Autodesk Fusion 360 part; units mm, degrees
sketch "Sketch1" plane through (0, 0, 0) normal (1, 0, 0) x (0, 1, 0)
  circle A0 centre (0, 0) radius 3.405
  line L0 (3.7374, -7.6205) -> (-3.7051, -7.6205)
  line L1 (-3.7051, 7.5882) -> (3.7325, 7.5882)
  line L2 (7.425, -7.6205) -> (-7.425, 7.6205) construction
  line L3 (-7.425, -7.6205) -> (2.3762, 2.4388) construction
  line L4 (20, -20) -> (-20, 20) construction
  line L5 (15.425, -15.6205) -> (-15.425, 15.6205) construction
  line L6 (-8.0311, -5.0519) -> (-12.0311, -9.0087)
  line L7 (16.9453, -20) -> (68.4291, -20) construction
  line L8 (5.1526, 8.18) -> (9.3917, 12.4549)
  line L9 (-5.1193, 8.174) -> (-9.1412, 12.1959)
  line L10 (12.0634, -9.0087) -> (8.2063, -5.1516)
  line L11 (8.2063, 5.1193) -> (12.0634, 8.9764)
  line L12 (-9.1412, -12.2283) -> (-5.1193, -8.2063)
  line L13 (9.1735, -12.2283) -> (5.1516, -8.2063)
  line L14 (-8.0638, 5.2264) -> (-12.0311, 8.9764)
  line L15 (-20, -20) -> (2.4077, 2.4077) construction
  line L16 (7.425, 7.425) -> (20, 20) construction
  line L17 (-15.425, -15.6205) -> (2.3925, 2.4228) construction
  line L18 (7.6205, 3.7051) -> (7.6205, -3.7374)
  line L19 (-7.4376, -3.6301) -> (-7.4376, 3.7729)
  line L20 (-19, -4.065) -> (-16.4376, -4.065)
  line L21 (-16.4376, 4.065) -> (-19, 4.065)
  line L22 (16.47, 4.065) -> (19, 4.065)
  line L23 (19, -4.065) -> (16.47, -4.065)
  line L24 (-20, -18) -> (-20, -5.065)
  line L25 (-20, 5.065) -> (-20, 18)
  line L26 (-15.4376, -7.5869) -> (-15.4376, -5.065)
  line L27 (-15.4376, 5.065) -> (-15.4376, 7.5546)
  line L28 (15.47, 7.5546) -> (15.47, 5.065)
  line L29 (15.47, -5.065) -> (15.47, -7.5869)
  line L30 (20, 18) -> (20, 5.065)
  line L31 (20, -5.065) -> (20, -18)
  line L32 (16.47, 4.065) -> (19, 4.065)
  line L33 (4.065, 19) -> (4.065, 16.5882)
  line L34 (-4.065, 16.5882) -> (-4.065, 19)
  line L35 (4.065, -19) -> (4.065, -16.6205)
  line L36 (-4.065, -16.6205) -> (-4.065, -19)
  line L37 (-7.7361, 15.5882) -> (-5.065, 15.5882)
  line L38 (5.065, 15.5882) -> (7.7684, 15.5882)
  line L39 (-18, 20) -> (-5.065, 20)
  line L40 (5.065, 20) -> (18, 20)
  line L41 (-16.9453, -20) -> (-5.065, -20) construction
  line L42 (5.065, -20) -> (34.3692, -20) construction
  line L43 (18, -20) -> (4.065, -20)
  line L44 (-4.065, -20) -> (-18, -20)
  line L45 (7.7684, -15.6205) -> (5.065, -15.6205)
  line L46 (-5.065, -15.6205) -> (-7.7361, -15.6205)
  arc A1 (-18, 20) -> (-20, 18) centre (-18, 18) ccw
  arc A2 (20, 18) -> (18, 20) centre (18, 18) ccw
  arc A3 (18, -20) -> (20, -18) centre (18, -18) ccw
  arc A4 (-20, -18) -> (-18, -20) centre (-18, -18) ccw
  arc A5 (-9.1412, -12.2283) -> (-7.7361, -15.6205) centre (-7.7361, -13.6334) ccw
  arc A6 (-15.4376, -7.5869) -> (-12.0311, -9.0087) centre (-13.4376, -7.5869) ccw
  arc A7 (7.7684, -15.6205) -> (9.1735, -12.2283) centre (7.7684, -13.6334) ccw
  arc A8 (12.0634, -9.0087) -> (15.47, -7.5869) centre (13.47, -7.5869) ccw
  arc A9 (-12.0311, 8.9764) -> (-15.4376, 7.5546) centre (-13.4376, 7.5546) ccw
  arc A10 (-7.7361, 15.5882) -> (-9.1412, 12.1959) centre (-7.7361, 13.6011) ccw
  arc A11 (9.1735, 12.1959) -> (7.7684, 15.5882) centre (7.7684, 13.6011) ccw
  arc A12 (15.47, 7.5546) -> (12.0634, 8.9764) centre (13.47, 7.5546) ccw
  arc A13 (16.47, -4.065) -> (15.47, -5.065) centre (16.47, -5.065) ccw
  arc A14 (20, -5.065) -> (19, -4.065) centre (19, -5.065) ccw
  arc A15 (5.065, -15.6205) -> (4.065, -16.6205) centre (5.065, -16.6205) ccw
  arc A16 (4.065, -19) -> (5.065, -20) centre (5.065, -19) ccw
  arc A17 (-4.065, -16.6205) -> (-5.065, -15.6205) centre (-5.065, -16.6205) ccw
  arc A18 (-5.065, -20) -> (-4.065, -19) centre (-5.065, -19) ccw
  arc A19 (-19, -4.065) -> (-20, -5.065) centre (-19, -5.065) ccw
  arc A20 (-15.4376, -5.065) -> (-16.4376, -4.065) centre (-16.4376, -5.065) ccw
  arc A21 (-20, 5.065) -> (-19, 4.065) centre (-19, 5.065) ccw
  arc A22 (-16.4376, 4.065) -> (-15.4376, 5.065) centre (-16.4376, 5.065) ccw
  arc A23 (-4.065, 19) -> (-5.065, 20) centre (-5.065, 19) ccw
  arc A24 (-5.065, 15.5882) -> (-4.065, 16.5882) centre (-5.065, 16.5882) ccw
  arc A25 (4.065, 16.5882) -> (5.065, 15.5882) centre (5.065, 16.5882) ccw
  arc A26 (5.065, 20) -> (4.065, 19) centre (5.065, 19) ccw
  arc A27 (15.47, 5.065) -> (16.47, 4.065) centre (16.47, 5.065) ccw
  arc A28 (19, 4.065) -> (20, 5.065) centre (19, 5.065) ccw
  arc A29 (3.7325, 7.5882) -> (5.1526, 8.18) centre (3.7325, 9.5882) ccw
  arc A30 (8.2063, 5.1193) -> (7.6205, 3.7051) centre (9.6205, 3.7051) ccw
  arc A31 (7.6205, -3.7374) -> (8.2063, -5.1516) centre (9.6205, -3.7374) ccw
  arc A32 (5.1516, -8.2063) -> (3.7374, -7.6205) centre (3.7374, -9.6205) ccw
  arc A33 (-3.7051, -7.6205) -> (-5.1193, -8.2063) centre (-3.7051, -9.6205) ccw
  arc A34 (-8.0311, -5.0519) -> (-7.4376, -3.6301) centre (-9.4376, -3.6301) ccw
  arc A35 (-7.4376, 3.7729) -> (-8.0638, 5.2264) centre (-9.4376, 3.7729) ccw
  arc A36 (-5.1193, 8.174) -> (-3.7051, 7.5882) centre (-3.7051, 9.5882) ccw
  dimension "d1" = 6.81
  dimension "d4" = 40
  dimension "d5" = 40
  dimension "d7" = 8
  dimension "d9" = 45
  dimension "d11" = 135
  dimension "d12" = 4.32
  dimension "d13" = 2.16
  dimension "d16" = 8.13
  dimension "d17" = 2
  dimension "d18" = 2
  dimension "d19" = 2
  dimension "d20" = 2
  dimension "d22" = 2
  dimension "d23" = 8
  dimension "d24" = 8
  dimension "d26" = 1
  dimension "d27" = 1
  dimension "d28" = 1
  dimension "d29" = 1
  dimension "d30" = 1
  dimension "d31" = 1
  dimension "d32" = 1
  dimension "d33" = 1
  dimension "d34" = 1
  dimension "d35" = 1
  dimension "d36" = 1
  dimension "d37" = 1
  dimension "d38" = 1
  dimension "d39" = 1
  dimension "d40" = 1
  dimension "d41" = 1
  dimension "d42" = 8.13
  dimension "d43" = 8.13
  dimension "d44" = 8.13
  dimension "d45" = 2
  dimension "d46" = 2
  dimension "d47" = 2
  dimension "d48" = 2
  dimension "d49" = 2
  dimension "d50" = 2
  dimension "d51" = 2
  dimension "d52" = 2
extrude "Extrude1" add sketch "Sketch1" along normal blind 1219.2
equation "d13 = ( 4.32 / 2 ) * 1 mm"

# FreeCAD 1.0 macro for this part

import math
import FreeCAD as App
import Part
import Sketcher
Q = App.Units.Quantity

doc = App.newDocument("Part")
body = doc.addObject("PartDesign::Body", "Body")

sketch1 = body.newObject("Sketcher::SketchObject", "Sketch")
sketch1.AttachmentSupport = (doc.getObject("YZ_Plane"), [""])
sketch1.MapMode = "FlatFace"
sketch1.addGeometry(Part.LineSegment(App.Vector(-3.7, -7.6, 0), App.Vector(3.7, -7.6, 0)), False)
sketch1.addGeometry(Part.ArcOfCircle(Part.Circle(App.Vector(3.7, -9.6, 0), App.Vector(0, 0, 1), 2), math.radians(45), math.radians(90)), False)
sketch1.addGeometry(Part.LineSegment(App.Vector(5.2, -8.2, 0), App.Vector(9.2, -12.2, 0)), False)
sketch1.addGeometry(Part.ArcOfCircle(Part.Circle(App.Vector(7.8, -13.6, 0), App.Vector(0, 0, 1), 2), math.radians(-90), math.radians(45)), False)
sketch1.addGeometry(Part.LineSegment(App.Vector(7.8, -15.6, 0), App.Vector(5.1, -15.6, 0)), False)
sketch1.addGeometry(Part.ArcOfCircle(Part.Circle(App.Vector(5.1, -16.6, 0), App.Vector(0, 0, 1), 1), math.radians(90), math.radians(180)), False)
sketch1.addGeometry(Part.LineSegment(App.Vector(4.1, -16.6, 0), App.Vector(4.1, -19, 0)), False)
sketch1.addGeometry(Part.ArcOfCircle(Part.Circle(App.Vector(5.1, -19, 0), App.Vector(0, 0, 1), 1), math.radians(180), math.radians(270)), False)
sketch1.addGeometry(Part.LineSegment(App.Vector(5.1, -20, 0), App.Vector(18, -20, 0)), False)
sketch1.addGeometry(Part.ArcOfCircle(Part.Circle(App.Vector(18, -18, 0), App.Vector(0, 0, 1), 2), math.radians(-90), math.radians(0)), False)
sketch1.addGeometry(Part.LineSegment(App.Vector(20, -18, 0), App.Vector(20, -5.1, 0)), False)
sketch1.addGeometry(Part.ArcOfCircle(Part.Circle(App.Vector(19, -5.1, 0), App.Vector(0, 0, 1), 1), math.radians(0), math.radians(90)), False)
sketch1.addGeometry(Part.LineSegment(App.Vector(19, -4.1, 0), App.Vector(16.5, -4.1, 0)), False)
sketch1.addGeometry(Part.ArcOfCircle(Part.Circle(App.Vector(16.5, -5.1, 0), App.Vector(0, 0, 1), 1), math.radians(90), math.radians(180)), False)
sketch1.addGeometry(Part.LineSegment(App.Vector(15.5, -5.1, 0), App.Vector(15.5, -7.6, 0)), False)
sketch1.addGeometry(Part.ArcOfCircle(Part.Circle(App.Vector(13.5, -7.6, 0), App.Vector(0, 0, 1), 2), math.radians(-135), math.radians(0)), False)
sketch1.addGeometry(Part.LineSegment(App.Vector(12.1, -9, 0), App.Vector(8.2, -5.2, 0)), False)
sketch1.addGeometry(Part.ArcOfCircle(Part.Circle(App.Vector(9.6, -3.7, 0), App.Vector(0, 0, 1), 2), math.radians(180), math.radians(225)), False)
sketch1.addGeometry(Part.LineSegment(App.Vector(7.6, -3.7, 0), App.Vector(7.6, 3.7, 0)), False)
sketch1.addGeometry(Part.ArcOfCircle(Part.Circle(App.Vector(9.6, 3.7, 0), App.Vector(0, 0, 1), 2), math.radians(135), math.radians(180)), False)
sketch1.addGeometry(Part.LineSegment(App.Vector(8.2, 5.1, 0), App.Vector(12.1, 9, 0)), False)
sketch1.addGeometry(Part.ArcOfCircle(Part.Circle(App.Vector(13.5, 7.6, 0), App.Vector(0, 0, 1), 2), math.radians(0), math.radians(135)), False)
sketch1.addGeometry(Part.LineSegment(App.Vector(15.5, 7.6, 0), App.Vector(15.5, 5.1, 0)), False)
sketch1.addGeometry(Part.ArcOfCircle(Part.Circle(App.Vector(16.5, 5.1, 0), App.Vector(0, 0, 1), 1), math.radians(180), math.radians(270)), False)
sketch1.addGeometry(Part.LineSegment(App.Vector(16.5, 4.1, 0), App.Vector(19, 4.1, 0)), False)
sketch1.addGeometry(Part.ArcOfCircle(Part.Circle(App.Vector(19, 5.1, 0), App.Vector(0, 0, 1), 1), math.radians(-90), math.radians(0)), False)
sketch1.addGeometry(Part.LineSegment(App.Vector(20, 5.1, 0), App.Vector(20, 18, 0)), False)
sketch1.addGeometry(Part.ArcOfCircle(Part.Circle(App.Vector(18, 18, 0), App.Vector(0, 0, 1), 2), math.radians(0), math.radians(90)), False)
sketch1.addGeometry(Part.LineSegment(App.Vector(18, 20, 0), App.Vector(5.1, 20, 0)), False)
sketch1.addGeometry(Part.ArcOfCircle(Part.Circle(App.Vector(5.1, 19, 0), App.Vector(0, 0, 1), 1), math.radians(90), math.radians(180)), False)
sketch1.addGeometry(Part.LineSegment(App.Vector(4.1, 19, 0), App.Vector(4.1, 16.6, 0)), False)
sketch1.addGeometry(Part.ArcOfCircle(Part.Circle(App.Vector(5.1, 16.6, 0), App.Vector(0, 0, 1), 1), math.radians(180), math.radians(270)), False)
sketch1.addGeometry(Part.LineSegment(App.Vector(5.1, 15.6, 0), App.Vector(7.8, 15.6, 0)), False)
sketch1.addGeometry(Part.ArcOfCircle(Part.Circle(App.Vector(7.8, 13.6, 0), App.Vector(0, 0, 1), 2), math.radians(-35), math.radians(90)), False)
sketch1.addGeometry(Part.LineSegment(App.Vector(9.4, 12.5, 0), App.Vector(5.2, 8.2, 0)), False)
sketch1.addGeometry(Part.ArcOfCircle(Part.Circle(App.Vector(3.7, 9.6, 0), App.Vector(0, 0, 1), 2), math.radians(-90), math.radians(-45)), False)
sketch1.addGeometry(Part.LineSegment(App.Vector(3.7, 7.6, 0), App.Vector(-3.7, 7.6, 0)), False)
sketch1.addGeometry(Part.ArcOfCircle(Part.Circle(App.Vector(-3.7, 9.6, 0), App.Vector(0, 0, 1), 2), math.radians(-135), math.radians(-90)), False)
sketch1.addGeometry(Part.LineSegment(App.Vector(-5.1, 8.2, 0), App.Vector(-9.1, 12.2, 0)), False)
sketch1.addGeometry(Part.ArcOfCircle(Part.Circle(App.Vector(-7.7, 13.6, 0), App.Vector(0, 0, 1), 2), math.radians(90), math.radians(225)), False)
sketch1.addGeometry(Part.LineSegment(App.Vector(-7.7, 15.6, 0), App.Vector(-5.1, 15.6, 0)), False)
sketch1.addGeometry(Part.ArcOfCircle(Part.Circle(App.Vector(-5.1, 16.6, 0), App.Vector(0, 0, 1), 1), math.radians(-90), math.radians(0)), False)
sketch1.addGeometry(Part.LineSegment(App.Vector(-4.1, 16.6, 0), App.Vector(-4.1, 19, 0)), False)
sketch1.addGeometry(Part.ArcOfCircle(Part.Circle(App.Vector(-5.1, 19, 0), App.Vector(0, 0, 1), 1), math.radians(0), math.radians(90)), False)
sketch1.addGeometry(Part.LineSegment(App.Vector(-5.1, 20, 0), App.Vector(-18, 20, 0)), False)
sketch1.addGeometry(Part.ArcOfCircle(Part.Circle(App.Vector(-18, 18, 0), App.Vector(0, 0, 1), 2), math.radians(90), math.radians(180)), False)
sketch1.addGeometry(Part.LineSegment(App.Vector(-20, 18, 0), App.Vector(-20, 5.1, 0)), False)
sketch1.addGeometry(Part.ArcOfCircle(Part.Circle(App.Vector(-19, 5.1, 0), App.Vector(0, 0, 1), 1), math.radians(180), math.radians(270)), False)
sketch1.addGeometry(Part.LineSegment(App.Vector(-19, 4.1, 0), App.Vector(-16.4, 4.1, 0)), False)
sketch1.addGeometry(Part.ArcOfCircle(Part.Circle(App.Vector(-16.4, 5.1, 0), App.Vector(0, 0, 1), 1), math.radians(-90), math.radians(0)), False)
sketch1.addGeometry(Part.LineSegment(App.Vector(-15.4, 5.1, 0), App.Vector(-15.4, 7.6, 0)), False)
sketch1.addGeometry(Part.ArcOfCircle(Part.Circle(App.Vector(-13.4, 7.6, 0), App.Vector(0, 0, 1), 2), math.radians(45), math.radians(180)), False)
sketch1.addGeometry(Part.LineSegment(App.Vector(-12, 9, 0), App.Vector(-8.1, 5.2, 0)), False)
sketch1.addGeometry(Part.ArcOfCircle(Part.Circle(App.Vector(-9.4, 3.8, 0), App.Vector(0, 0, 1), 2), math.radians(0), math.radians(47)), False)
sketch1.addGeometry(Part.LineSegment(App.Vector(-7.4, 3.8, 0), App.Vector(-7.4, -3.6, 0)), False)
sketch1.addGeometry(Part.ArcOfCircle(Part.Circle(App.Vector(-9.4, -3.6, 0), App.Vector(0, 0, 1), 2), math.radians(-45), math.radians(0)), False)
sketch1.addGeometry(Part.LineSegment(App.Vector(-8, -5.1, 0), App.Vector(-12, -9, 0)), False)
sketch1.addGeometry(Part.ArcOfCircle(Part.Circle(App.Vector(-13.4, -7.6, 0), App.Vector(0, 0, 1), 2), math.radians(180), math.radians(315)), False)
sketch1.addGeometry(Part.LineSegment(App.Vector(-15.4, -7.6, 0), App.Vector(-15.4, -5.1, 0)), False)
sketch1.addGeometry(Part.ArcOfCircle(Part.Circle(App.Vector(-16.4, -5.1, 0), App.Vector(0, 0, 1), 1), math.radians(0), math.radians(90)), False)
sketch1.addGeometry(Part.LineSegment(App.Vector(-16.4, -4.1, 0), App.Vector(-19, -4.1, 0)), False)
sketch1.addGeometry(Part.ArcOfCircle(Part.Circle(App.Vector(-19, -5.1, 0), App.Vector(0, 0, 1), 1), math.radians(90), math.radians(180)), False)
sketch1.addGeometry(Part.LineSegment(App.Vector(-20, -5.1, 0), App.Vector(-20, -18, 0)), False)
sketch1.addGeometry(Part.ArcOfCircle(Part.Circle(App.Vector(-18, -18, 0), App.Vector(0, 0, 1), 2), math.radians(180), math.radians(270)), False)
sketch1.addGeometry(Part.LineSegment(App.Vector(-18, -20, 0), App.Vector(-5.1, -20, 0)), False)
sketch1.addGeometry(Part.ArcOfCircle(Part.Circle(App.Vector(-5.1, -19, 0), App.Vector(0, 0, 1), 1), math.radians(-90), math.radians(0)), False)
sketch1.addGeometry(Part.LineSegment(App.Vector(-4.1, -19, 0), App.Vector(-4.1, -16.6, 0)), False)
sketch1.addGeometry(Part.ArcOfCircle(Part.Circle(App.Vector(-5.1, -16.6, 0), App.Vector(0, 0, 1), 1), math.radians(0), math.radians(90)), False)
sketch1.addGeometry(Part.LineSegment(App.Vector(-5.1, -15.6, 0), App.Vector(-7.7, -15.6, 0)), False)
sketch1.addGeometry(Part.ArcOfCircle(Part.Circle(App.Vector(-7.7, -13.6, 0), App.Vector(0, 0, 1), 2), math.radians(135), math.radians(270)), False)
sketch1.addGeometry(Part.LineSegment(App.Vector(-9.1, -12.2, 0), App.Vector(-5.1, -8.2, 0)), False)
sketch1.addGeometry(Part.ArcOfCircle(Part.Circle(App.Vector(-3.7, -9.6, 0), App.Vector(0, 0, 1), 2), math.radians(90), math.radians(135)), False)
sketch1.addGeometry(Part.Circle(App.Vector(0, 0, 0), App.Vector(0, 0, 1), 3.4), False)
sketch1.addConstraint(Sketcher.Constraint("Tangent", 0, 2, 1, 2))
sketch1.addConstraint(Sketcher.Constraint("Tangent", 1, 1, 2, 1))
sketch1.addConstraint(Sketcher.Constraint("Tangent", 2, 2, 3, 2))
sketch1.addConstraint(Sketcher.Constraint("Tangent", 3, 1, 4, 1))
sketch1.addConstraint(Sketcher.Constraint("Tangent", 4, 2, 5, 1))
sketch1.addConstraint(Sketcher.Constraint("Tangent", 5, 2, 6, 1))
sketch1.addConstraint(Sketcher.Constraint("Tangent", 6, 2, 7, 1))
sketch1.addConstraint(Sketcher.Constraint("Tangent", 7, 2, 8, 1))
sketch1.addConstraint(Sketcher.Constraint("Tangent", 8, 2, 9, 1))
sketch1.addConstraint(Sketcher.Constraint("Tangent", 9, 2, 10, 1))
sketch1.addConstraint(Sketcher.Constraint("Tangent", 10, 2, 11, 1))
sketch1.addConstraint(Sketcher.Constraint("Tangent", 11, 2, 12, 1))
sketch1.addConstraint(Sketcher.Constraint("Tangent", 12, 2, 13, 1))
sketch1.addConstraint(Sketcher.Constraint("Tangent", 13, 2, 14, 1))
sketch1.addConstraint(Sketcher.Constraint("Tangent", 14, 2, 15, 2))
sketch1.addConstraint(Sketcher.Constraint("Coincident", 15, 1, 16, 1))
sketch1.addConstraint(Sketcher.Constraint("Tangent", 16, 2, 17, 2))
sketch1.addConstraint(Sketcher.Constraint("Tangent", 17, 1, 18, 1))
sketch1.addConstraint(Sketcher.Constraint("Tangent", 18, 2, 19, 2))
sketch1.addConstraint(Sketcher.Constraint("Tangent", 19, 1, 20, 1))
sketch1.addConstraint(Sketcher.Constraint("Coincident", 20, 2, 21, 2))
sketch1.addConstraint(Sketcher.Constraint("Tangent", 21, 1, 22, 1))
sketch1.addConstraint(Sketcher.Constraint("Tangent", 22, 2, 23, 1))
sketch1.addConstraint(Sketcher.Constraint("Tangent", 23, 2, 24, 1))
sketch1.addConstraint(Sketcher.Constraint("Tangent", 24, 2, 25, 1))
sketch1.addConstraint(Sketcher.Constraint("Tangent", 25, 2, 26, 1))
sketch1.addConstraint(Sketcher.Constraint("Tangent", 26, 2, 27, 1))
sketch1.addConstraint(Sketcher.Constraint("Tangent", 27, 2, 28, 1))
sketch1.addConstraint(Sketcher.Constraint("Tangent", 28, 2, 29, 1))
sketch1.addConstraint(Sketcher.Constraint("Tangent", 29, 2, 30, 1))
sketch1.addConstraint(Sketcher.Constraint("Tangent", 30, 2, 31, 1))
sketch1.addConstraint(Sketcher.Constraint("Tangent", 31, 2, 32, 1))
sketch1.addConstraint(Sketcher.Constraint("Tangent", 32, 2, 33, 2))
sketch1.addConstraint(Sketcher.Constraint("Coincident", 33, 1, 34, 1))
sketch1.addConstraint(Sketcher.Constraint("Tangent", 34, 2, 35, 2))
sketch1.addConstraint(Sketcher.Constraint("Tangent", 35, 1, 36, 1))
sketch1.addConstraint(Sketcher.Constraint("Tangent", 36, 2, 37, 2))
sketch1.addConstraint(Sketcher.Constraint("Tangent", 37, 1, 38, 1))
sketch1.addConstraint(Sketcher.Constraint("Tangent", 38, 2, 39, 2))
sketch1.addConstraint(Sketcher.Constraint("Tangent", 39, 1, 40, 1))
sketch1.addConstraint(Sketcher.Constraint("Tangent", 40, 2, 41, 1))
sketch1.addConstraint(Sketcher.Constraint("Tangent", 41, 2, 42, 1))
sketch1.addConstraint(Sketcher.Constraint("Tangent", 42, 2, 43, 1))
sketch1.addConstraint(Sketcher.Constraint("Tangent", 43, 2, 44, 1))
sketch1.addConstraint(Sketcher.Constraint("Tangent", 44, 2, 45, 1))
sketch1.addConstraint(Sketcher.Constraint("Tangent", 45, 2, 46, 1))
sketch1.addConstraint(Sketcher.Constraint("Tangent", 46, 2, 47, 1))
sketch1.addConstraint(Sketcher.Constraint("Tangent", 47, 2, 48, 1))
sketch1.addConstraint(Sketcher.Constraint("Tangent", 48, 2, 49, 1))
sketch1.addConstraint(Sketcher.Constraint("Tangent", 49, 2, 50, 1))
sketch1.addConstraint(Sketcher.Constraint("Tangent", 50, 2, 51, 2))
sketch1.addConstraint(Sketcher.Constraint("Coincident", 51, 1, 52, 1))
sketch1.addConstraint(Sketcher.Constraint("Tangent", 52, 2, 53, 2))
sketch1.addConstraint(Sketcher.Constraint("Tangent", 53, 1, 54, 1))
sketch1.addConstraint(Sketcher.Constraint("Tangent", 54, 2, 55, 2))
sketch1.addConstraint(Sketcher.Constraint("Tangent", 55, 1, 56, 1))
sketch1.addConstraint(Sketcher.Constraint("Tangent", 56, 2, 57, 2))
sketch1.addConstraint(Sketcher.Constraint("Tangent", 57, 1, 58, 1))
sketch1.addConstraint(Sketcher.Constraint("Tangent", 58, 2, 59, 1))
sketch1.addConstraint(Sketcher.Constraint("Tangent", 59, 2, 60, 1))
sketch1.addConstraint(Sketcher.Constraint("Tangent", 60, 2, 61, 1))
sketch1.addConstraint(Sketcher.Constraint("Tangent", 61, 2, 62, 1))
sketch1.addConstraint(Sketcher.Constraint("Tangent", 62, 2, 63, 1))
sketch1.addConstraint(Sketcher.Constraint("Tangent", 63, 2, 64, 1))
sketch1.addConstraint(Sketcher.Constraint("Tangent", 64, 2, 65, 1))
sketch1.addConstraint(Sketcher.Constraint("Tangent", 65, 2, 66, 1))
sketch1.addConstraint(Sketcher.Constraint("Tangent", 66, 2, 67, 1))
sketch1.addConstraint(Sketcher.Constraint("Tangent", 67, 2, 68, 1))
sketch1.addConstraint(Sketcher.Constraint("Tangent", 68, 2, 69, 2))
sketch1.addConstraint(Sketcher.Constraint("Tangent", 69, 1, 70, 1))
sketch1.addConstraint(Sketcher.Constraint("Tangent", 70, 2, 71, 2))
sketch1.addConstraint(Sketcher.Constraint("Tangent", 71, 1, 0, 1))
sketch1.addConstraint(Sketcher.Constraint("Horizontal", 0))
sketch1.addConstraint(Sketcher.Constraint("Horizontal", 4))
sketch1.addConstraint(Sketcher.Constraint("Vertical", 6))
sketch1.addConstraint(Sketcher.Constraint("Horizontal", 8))
sketch1.addConstraint(Sketcher.Constraint("Vertical", 10))
sketch1.addConstraint(Sketcher.Constraint("Horizontal", 12))
sketch1.addConstraint(Sketcher.Constraint("Vertical", 14))
sketch1.addConstraint(Sketcher.Constraint("Vertical", 18))
sketch1.addConstraint(Sketcher.Constraint("Vertical", 22))
sketch1.addConstraint(Sketcher.Constraint("Horizontal", 24))
sketch1.addConstraint(Sketcher.Constraint("Vertical", 26))
sketch1.addConstraint(Sketcher.Constraint("Horizontal", 28))
sketch1.addConstraint(Sketcher.Constraint("Vertical", 30))
sketch1.addConstraint(Sketcher.Constraint("Horizontal", 32))
sketch1.addConstraint(Sketcher.Constraint("Horizontal", 36))
sketch1.addConstraint(Sketcher.Constraint("Horizontal", 40))
sketch1.addConstraint(Sketcher.Constraint("Vertical", 42))
sketch1.addConstraint(Sketcher.Constraint("Horizontal", 44))
sketch1.addConstraint(Sketcher.Constraint("Vertical", 46))
sketch1.addConstraint(Sketcher.Constraint("Horizontal", 48))
sketch1.addConstraint(Sketcher.Constraint("Vertical", 50))
sketch1.addConstraint(Sketcher.Constraint("Vertical", 54))
sketch1.addConstraint(Sketcher.Constraint("Vertical", 58))
sketch1.addConstraint(Sketcher.Constraint("Horizontal", 60))
sketch1.addConstraint(Sketcher.Constraint("Vertical", 62))
sketch1.addConstraint(Sketcher.Constraint("Horizontal", 64))
sketch1.addConstraint(Sketcher.Constraint("Vertical", 66))
sketch1.addConstraint(Sketcher.Constraint("Horizontal", 68))
sketch1.addConstraint(Sketcher.Constraint("Coincident", 72, 3, -1, 1))
sketch1.addConstraint(Sketcher.Constraint("Equal", 5, 7))
sketch1.addConstraint(Sketcher.Constraint("Equal", 1, 9))
sketch1.addConstraint(Sketcher.Constraint("Equal", 7, 11))
sketch1.addConstraint(Sketcher.Constraint("Equal", 11, 13))
sketch1.addConstraint(Sketcher.Constraint("Equal", 9, 15))
sketch1.addConstraint(Sketcher.Constraint("Equal", 15, 17))
sketch1.addConstraint(Sketcher.Constraint("Equal", 17, 19))
sketch1.addConstraint(Sketcher.Constraint("Equal", 19, 21))
sketch1.addConstraint(Sketcher.Constraint("Equal", 13, 23))
sketch1.addConstraint(Sketcher.Constraint("Equal", 23, 25))
sketch1.addConstraint(Sketcher.Constraint("Equal", 21, 27))
sketch1.addConstraint(Sketcher.Constraint("Equal", 25, 29))
sketch1.addConstraint(Sketcher.Constraint("Equal", 29, 31))
sketch1.addConstraint(Sketcher.Constraint("Equal", 3, 33))
sketch1.addConstraint(Sketcher.Constraint("Equal", 27, 35))
sketch1.addConstraint(Sketcher.Constraint("Equal", 35, 37))
sketch1.addConstraint(Sketcher.Constraint("Equal", 33, 39))
sketch1.addConstraint(Sketcher.Constraint("Equal", 31, 41))
sketch1.addConstraint(Sketcher.Constraint("Equal", 41, 43))
sketch1.addConstraint(Sketcher.Constraint("Equal", 37, 45))
sketch1.addConstraint(Sketcher.Constraint("Equal", 43, 47))
sketch1.addConstraint(Sketcher.Constraint("Equal", 47, 49))
sketch1.addConstraint(Sketcher.Constraint("Equal", 45, 51))
sketch1.addConstraint(Sketcher.Constraint("Equal", 51, 53))
sketch1.addConstraint(Sketcher.Constraint("Equal", 53, 55))
sketch1.addConstraint(Sketcher.Constraint("Equal", 55, 57))
sketch1.addConstraint(Sketcher.Constraint("Equal", 49, 59))
sketch1.addConstraint(Sketcher.Constraint("Equal", 59, 61))
sketch1.addConstraint(Sketcher.Constraint("Equal", 57, 63))
sketch1.addConstraint(Sketcher.Constraint("Equal", 61, 65))
sketch1.addConstraint(Sketcher.Constraint("Equal", 65, 67))
sketch1.addConstraint(Sketcher.Constraint("Equal", 39, 69))
sketch1.addConstraint(Sketcher.Constraint("Equal", 63, 71))
sketch1.addConstraint(Sketcher.Constraint("Symmetric", 7, 3, 43, 3, -1, 1))
sketch1.addConstraint(Sketcher.Constraint("Symmetric", 11, 3, 47, 3, -1, 1))
sketch1.addConstraint(Sketcher.Constraint("Symmetric", 25, 3, 61, 3, -1, 1))
sketch1.addConstraint(Sketcher.Constraint("Symmetric", 29, 3, 65, 3, -1, 1))
sketch1.addConstraint(Sketcher.Constraint("Symmetric", 31, 3, 41, 3, -2))
sketch1.addConstraint(Sketcher.Constraint("Symmetric", 27, 3, 45, 3, -2))
sketch1.addConstraint(Sketcher.Constraint("Symmetric", 13, 3, 23, 3, -1))
sketch1.addConstraint(Sketcher.Constraint("Parallel", 2, 16))
sketch1.addConstraint(Sketcher.Constraint("Perpendicular", 16, 20))
sketch1.addConstraint(Sketcher.Constraint("Perpendicular", 20, 38))
sketch1.addConstraint(Sketcher.Constraint("Perpendicular", 38, 70))
sketch1.addConstraint(Sketcher.Constraint("Horizontal", 21, 3, 51, 3))
sketch1.addConstraint(Sketcher.Constraint("Horizontal", 15, 3, 57, 3))
sketch1.addConstraint(Sketcher.Constraint("Horizontal", 5, 3, 67, 3))
sketch1.addConstraint(Sketcher.Constraint("Horizontal", 20, 2, 51, 1))
sketch1.addConstraint(Sketcher.Constraint("Horizontal", 15, 1, 56, 2))
sketch1.addConstraint(Sketcher.Constraint("Horizontal", 2, 2, 69, 1))
sketch1.addConstraint(Sketcher.Constraint("Vertical", 3, 3, 33, 3))
sketch1.addConstraint(Sketcher.Constraint("Vertical", 51, 3, 57, 3))
sketch1.addConstraint(Sketcher.Constraint("Vertical", 39, 3, 69, 3))
sketch1.addConstraint(Sketcher.Constraint("Vertical", 37, 3, 71, 3))
sketch1.addConstraint(Sketcher.Constraint("Vertical", 15, 1, 20, 2))
sketch1.addConstraint(Sketcher.Constraint("Equal", 64, 10))
sketch1.addConstraint(Sketcher.Constraint("Equal", 0, 18))
sketch1.addConstraint(Sketcher.Constraint("Radius", 1, 2.0))
sketch1.addConstraint(Sketcher.Constraint("Radius", 5, 1.0))
sketch1.addConstraint(Sketcher.Constraint("Diameter", 72, 6.81))
sketch1.addConstraint(Sketcher.Constraint("DistanceY", 7, 3, -1, 1, 19.0))
sketch1.addConstraint(Sketcher.Constraint("DistanceX", -1, 1, 9, 3, 18.0))
sketch1.addConstraint(Sketcher.Constraint("Radius", 3, 1.987))
sketch1.addConstraint(Sketcher.Constraint("DistanceX", 12, 2, 12, 1, 2.53))
sketch1.addConstraint(Sketcher.Constraint("Angle", 34, Q("-134.759 deg")))
sketch1.addConstraint(Sketcher.Constraint("Angle", 56, Q("-135.311 deg")))
sketch1.addConstraint(Sketcher.Constraint("DistanceX", 8, 1, 8, 2, 12.935))
sketch1.addConstraint(Sketcher.Constraint("DistanceX", 40, 1, 40, 2, 2.671))
sketch1.addConstraint(Sketcher.Constraint("DistanceY", 14, 2, 14, 1, 2.522))
sketch1.addConstraint(Sketcher.Constraint("DistanceY", 54, 2, 54, 1, 7.403))
sketch1.addConstraint(Sketcher.Constraint("DistanceY", 55, 3, -1, 1, 3.63))
sketch1.addConstraint(Sketcher.Constraint("DistanceY", -1, 1, 34, 2, 8.18))
sketch1.addConstraint(Sketcher.Constraint("Distance", 2, 5.688))
sketch1.addConstraint(Sketcher.Constraint("Distance", 52, 5.459))
sketch1.addConstraint(Sketcher.Constraint("DistanceX", 0, 1, 0, 2, 7.4425))
sketch1.addConstraint(Sketcher.Constraint("DistanceX", 36, 2, 36, 1, 7.4376))
sketch1.addConstraint(Sketcher.Constraint("DistanceX", 48, 1, 48, 2, 2.5624))
sketch1.addConstraint(Sketcher.Constraint("DistanceY", 6, 2, 6, 1, 2.3795))
pad1 = body.newObject("PartDesign::Pad", "Pad")
pad1.Profile = sketch1
pad1.Length = 1219.2

doc.recompute()
